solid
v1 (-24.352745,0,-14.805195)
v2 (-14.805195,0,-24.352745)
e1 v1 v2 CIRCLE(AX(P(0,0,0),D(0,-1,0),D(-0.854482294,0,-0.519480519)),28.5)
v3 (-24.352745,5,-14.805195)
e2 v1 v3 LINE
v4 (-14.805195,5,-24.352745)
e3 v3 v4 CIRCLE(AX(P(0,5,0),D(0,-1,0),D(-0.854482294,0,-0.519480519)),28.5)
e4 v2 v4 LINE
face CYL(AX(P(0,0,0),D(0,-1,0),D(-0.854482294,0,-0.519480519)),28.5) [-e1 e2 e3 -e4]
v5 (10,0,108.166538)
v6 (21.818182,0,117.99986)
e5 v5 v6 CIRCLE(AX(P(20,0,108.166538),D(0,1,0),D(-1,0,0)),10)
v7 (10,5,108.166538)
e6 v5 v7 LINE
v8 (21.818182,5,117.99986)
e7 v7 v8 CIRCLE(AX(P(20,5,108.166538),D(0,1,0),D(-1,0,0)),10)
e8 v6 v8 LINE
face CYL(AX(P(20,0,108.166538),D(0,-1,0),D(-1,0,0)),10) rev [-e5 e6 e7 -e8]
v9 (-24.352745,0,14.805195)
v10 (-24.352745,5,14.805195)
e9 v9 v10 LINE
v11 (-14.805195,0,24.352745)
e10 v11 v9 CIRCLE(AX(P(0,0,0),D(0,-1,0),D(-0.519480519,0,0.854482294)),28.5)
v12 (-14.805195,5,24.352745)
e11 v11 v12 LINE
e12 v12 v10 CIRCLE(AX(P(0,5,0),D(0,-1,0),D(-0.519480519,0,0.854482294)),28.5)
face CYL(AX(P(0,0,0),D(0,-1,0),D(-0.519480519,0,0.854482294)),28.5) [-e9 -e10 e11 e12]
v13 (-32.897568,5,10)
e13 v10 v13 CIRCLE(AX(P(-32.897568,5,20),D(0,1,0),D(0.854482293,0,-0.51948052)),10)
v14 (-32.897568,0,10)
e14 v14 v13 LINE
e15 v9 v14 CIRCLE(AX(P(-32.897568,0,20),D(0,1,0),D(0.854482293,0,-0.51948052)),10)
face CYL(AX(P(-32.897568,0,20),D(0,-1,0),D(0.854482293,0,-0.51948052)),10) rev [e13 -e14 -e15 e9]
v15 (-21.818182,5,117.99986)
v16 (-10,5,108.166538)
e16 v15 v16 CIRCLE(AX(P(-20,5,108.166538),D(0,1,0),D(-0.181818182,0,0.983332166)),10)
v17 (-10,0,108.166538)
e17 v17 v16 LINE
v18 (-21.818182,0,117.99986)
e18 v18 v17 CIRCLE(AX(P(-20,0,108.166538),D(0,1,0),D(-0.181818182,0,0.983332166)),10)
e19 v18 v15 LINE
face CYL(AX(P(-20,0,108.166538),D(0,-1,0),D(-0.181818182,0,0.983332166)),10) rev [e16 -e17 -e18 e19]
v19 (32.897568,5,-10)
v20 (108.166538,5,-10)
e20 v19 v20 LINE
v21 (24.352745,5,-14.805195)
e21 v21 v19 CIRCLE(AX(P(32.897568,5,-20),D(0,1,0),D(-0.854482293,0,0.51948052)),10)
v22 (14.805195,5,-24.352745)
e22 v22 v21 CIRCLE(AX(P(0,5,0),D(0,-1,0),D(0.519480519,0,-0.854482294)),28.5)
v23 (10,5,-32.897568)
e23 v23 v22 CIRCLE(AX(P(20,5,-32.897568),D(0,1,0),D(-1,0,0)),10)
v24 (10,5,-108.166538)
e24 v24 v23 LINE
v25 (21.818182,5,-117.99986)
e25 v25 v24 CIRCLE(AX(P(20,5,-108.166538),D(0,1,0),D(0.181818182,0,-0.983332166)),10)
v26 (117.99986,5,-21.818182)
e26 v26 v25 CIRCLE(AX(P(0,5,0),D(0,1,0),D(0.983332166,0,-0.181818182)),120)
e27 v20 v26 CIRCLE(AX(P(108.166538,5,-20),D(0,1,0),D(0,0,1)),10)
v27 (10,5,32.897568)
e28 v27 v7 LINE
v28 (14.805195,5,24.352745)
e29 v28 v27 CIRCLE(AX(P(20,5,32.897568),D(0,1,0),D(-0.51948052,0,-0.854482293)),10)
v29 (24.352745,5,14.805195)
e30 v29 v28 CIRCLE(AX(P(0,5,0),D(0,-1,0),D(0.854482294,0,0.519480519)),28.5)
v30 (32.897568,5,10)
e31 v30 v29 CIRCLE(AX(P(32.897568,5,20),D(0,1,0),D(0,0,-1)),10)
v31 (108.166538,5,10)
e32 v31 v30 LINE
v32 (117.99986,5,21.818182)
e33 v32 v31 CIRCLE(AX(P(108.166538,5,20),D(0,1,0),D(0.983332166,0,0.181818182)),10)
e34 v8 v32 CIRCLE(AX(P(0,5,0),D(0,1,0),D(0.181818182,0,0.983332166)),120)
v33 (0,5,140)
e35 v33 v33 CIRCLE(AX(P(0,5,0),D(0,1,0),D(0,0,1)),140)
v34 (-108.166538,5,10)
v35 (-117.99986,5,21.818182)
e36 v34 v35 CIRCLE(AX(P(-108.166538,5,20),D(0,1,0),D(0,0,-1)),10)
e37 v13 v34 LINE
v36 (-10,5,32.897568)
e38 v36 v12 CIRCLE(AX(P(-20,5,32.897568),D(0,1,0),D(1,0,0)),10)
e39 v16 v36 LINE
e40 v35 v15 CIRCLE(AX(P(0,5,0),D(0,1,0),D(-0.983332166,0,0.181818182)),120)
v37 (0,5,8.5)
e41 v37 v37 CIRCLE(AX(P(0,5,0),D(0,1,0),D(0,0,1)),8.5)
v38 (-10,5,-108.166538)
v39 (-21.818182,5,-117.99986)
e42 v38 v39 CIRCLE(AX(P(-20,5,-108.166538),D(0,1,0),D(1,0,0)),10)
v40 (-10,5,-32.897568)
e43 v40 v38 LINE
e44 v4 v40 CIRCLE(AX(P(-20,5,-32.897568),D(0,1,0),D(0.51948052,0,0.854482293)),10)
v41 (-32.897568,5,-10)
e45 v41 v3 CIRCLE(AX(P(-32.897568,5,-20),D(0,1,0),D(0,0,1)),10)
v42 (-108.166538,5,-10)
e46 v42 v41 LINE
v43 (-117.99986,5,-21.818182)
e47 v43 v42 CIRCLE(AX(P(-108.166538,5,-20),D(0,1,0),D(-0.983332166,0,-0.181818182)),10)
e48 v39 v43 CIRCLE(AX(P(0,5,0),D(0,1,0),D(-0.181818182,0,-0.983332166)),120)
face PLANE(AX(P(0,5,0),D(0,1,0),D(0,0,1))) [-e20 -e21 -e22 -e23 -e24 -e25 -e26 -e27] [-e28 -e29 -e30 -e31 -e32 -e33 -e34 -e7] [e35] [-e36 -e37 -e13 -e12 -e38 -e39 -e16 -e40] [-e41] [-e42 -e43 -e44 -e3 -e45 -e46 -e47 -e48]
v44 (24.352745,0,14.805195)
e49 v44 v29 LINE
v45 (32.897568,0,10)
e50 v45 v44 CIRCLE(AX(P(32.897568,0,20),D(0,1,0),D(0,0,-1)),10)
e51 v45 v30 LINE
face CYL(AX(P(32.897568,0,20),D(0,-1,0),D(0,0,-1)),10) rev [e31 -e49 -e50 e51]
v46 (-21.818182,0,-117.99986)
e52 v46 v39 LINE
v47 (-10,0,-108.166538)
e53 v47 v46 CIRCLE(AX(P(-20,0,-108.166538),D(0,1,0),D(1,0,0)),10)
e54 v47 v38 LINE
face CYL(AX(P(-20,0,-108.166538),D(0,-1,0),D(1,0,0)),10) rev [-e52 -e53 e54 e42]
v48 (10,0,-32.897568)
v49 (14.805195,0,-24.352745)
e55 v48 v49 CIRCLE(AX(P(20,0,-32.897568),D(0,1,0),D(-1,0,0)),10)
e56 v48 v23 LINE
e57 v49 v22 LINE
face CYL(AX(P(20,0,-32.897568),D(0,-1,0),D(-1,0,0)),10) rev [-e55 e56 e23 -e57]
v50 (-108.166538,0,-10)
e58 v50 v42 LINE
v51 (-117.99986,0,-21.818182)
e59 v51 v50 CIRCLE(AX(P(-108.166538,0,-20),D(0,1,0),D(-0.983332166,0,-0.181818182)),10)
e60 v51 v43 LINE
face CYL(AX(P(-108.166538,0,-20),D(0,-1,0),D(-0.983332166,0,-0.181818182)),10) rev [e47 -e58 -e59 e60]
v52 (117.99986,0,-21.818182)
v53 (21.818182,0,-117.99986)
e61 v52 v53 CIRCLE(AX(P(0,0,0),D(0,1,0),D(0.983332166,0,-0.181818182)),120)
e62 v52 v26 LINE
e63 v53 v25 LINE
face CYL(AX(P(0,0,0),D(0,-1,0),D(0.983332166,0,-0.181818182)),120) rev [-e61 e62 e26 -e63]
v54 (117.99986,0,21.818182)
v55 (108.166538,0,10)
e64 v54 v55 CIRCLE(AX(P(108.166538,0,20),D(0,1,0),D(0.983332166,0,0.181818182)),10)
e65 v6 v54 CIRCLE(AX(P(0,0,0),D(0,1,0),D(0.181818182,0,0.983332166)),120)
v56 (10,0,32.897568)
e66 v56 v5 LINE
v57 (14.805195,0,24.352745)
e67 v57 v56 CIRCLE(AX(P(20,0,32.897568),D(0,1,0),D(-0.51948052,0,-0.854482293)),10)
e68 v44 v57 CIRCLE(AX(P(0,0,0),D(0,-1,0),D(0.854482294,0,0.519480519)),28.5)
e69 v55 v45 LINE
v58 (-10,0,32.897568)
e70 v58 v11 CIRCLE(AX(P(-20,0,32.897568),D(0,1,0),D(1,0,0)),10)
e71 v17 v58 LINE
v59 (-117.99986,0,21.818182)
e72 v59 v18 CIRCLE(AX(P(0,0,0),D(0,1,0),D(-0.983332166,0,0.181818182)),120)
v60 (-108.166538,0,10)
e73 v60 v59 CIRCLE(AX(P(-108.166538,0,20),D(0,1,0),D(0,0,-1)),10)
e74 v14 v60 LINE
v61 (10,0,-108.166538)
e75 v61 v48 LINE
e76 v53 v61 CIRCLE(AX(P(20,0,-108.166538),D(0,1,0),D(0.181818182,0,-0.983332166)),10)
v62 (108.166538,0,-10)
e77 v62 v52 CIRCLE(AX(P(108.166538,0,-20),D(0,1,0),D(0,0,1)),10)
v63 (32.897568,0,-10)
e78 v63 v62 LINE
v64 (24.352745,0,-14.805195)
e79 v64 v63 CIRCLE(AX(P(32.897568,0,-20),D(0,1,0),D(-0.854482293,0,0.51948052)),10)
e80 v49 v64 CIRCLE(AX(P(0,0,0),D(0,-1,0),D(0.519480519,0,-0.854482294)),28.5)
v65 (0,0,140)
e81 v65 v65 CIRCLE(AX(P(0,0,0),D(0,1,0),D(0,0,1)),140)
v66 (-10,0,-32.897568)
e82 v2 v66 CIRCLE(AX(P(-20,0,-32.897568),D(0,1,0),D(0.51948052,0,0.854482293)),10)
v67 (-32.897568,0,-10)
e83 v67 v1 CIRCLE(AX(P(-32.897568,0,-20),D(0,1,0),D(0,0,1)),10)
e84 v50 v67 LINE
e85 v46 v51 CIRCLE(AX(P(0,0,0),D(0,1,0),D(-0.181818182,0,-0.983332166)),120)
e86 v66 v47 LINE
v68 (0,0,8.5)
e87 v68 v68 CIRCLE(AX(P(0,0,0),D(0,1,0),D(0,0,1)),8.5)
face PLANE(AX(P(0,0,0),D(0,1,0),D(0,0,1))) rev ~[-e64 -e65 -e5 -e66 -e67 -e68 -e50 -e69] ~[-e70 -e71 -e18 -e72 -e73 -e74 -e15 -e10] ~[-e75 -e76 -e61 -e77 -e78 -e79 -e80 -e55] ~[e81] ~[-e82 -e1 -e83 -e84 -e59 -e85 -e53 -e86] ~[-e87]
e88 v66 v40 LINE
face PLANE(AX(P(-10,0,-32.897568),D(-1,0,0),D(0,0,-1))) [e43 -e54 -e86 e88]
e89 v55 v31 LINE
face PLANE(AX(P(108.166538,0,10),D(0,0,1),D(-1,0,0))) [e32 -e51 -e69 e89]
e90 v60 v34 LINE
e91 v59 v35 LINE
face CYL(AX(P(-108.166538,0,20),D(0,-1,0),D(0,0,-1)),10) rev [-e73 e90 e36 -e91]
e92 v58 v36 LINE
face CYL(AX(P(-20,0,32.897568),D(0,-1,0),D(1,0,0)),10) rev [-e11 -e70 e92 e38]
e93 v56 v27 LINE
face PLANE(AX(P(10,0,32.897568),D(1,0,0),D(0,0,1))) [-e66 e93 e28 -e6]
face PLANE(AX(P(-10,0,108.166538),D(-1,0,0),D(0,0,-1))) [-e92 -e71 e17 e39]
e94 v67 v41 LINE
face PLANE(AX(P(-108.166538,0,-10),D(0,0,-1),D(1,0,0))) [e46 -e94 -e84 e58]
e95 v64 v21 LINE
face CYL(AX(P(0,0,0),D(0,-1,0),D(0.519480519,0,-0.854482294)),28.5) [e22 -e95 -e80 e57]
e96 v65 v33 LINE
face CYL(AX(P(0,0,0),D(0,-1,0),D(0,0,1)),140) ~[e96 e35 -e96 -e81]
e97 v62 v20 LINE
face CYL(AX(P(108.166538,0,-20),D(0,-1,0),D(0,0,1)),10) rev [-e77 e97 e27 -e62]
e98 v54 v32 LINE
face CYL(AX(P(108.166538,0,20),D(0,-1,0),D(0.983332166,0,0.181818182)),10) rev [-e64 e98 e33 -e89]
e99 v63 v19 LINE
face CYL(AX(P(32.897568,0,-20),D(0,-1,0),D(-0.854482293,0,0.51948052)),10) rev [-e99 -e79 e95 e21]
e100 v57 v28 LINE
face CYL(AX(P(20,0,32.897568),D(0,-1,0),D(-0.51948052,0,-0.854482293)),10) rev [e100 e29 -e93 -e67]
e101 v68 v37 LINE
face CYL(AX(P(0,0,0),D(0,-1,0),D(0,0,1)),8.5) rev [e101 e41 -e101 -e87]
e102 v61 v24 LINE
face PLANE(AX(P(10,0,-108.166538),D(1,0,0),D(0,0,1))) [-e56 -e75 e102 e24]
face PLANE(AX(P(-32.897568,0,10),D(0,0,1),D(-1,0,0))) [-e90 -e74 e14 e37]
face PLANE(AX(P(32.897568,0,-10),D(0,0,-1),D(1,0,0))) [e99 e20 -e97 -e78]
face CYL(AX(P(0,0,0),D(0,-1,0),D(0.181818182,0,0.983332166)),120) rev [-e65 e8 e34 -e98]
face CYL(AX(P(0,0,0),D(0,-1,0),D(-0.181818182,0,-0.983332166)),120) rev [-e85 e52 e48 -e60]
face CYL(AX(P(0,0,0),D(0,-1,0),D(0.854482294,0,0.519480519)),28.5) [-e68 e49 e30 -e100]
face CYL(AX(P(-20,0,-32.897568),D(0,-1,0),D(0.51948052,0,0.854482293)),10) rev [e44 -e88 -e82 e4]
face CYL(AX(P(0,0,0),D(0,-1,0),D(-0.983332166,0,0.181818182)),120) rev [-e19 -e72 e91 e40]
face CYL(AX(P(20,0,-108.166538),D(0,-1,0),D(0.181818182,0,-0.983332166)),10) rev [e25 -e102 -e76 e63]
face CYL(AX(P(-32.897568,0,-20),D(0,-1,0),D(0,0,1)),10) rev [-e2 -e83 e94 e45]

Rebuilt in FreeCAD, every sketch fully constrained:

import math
import FreeCAD as App
import Part
import Sketcher
Q = App.Units.Quantity

doc = App.newDocument("Part")
body = doc.addObject("PartDesign::Body", "Body")

# Sketch on XZ plane
sketch1 = doc.addObject("Sketcher::SketchObject", "Sketch")
body.addObject(sketch1)
sketch1.AttachmentSupport = (doc.XZ_Plane, [""])
sketch1.MapMode = "FlatFace"
sketch1.addGeometry(Part.Circle(App.Vector(0, 0, 0), App.Vector(0, 0, 1), 140), False)
sketch1.addGeometry(Part.LineSegment(App.Vector(-33, -10, 0), App.Vector(-108, -10, 0)), False)
sketch1.addGeometry(Part.ArcOfCircle(Part.Circle(App.Vector(-108, -20, 0), App.Vector(0, 0, 1), 10), math.radians(90), math.radians(190)), False)
sketch1.addGeometry(Part.ArcOfCircle(Part.Circle(App.Vector(0, 0, 0), App.Vector(0, 0, 1), 120), math.radians(-170), math.radians(-100)), False)
sketch1.addGeometry(Part.ArcOfCircle(Part.Circle(App.Vector(-20, -108, 0), App.Vector(0, 0, 1), 10), math.radians(-100), math.radians(0)), False)
sketch1.addGeometry(Part.LineSegment(App.Vector(-10, -108, 0), App.Vector(-10, -33, 0)), False)
sketch1.addGeometry(Part.ArcOfCircle(Part.Circle(App.Vector(-20, -33, 0), App.Vector(0, 0, 1), 10), math.radians(0), math.radians(59)), False)
sketch1.addGeometry(Part.ArcOfCircle(Part.Circle(App.Vector(0, 0, 0), App.Vector(0, 0, 1), 28), math.radians(-149), math.radians(-121)), False)
sketch1.addGeometry(Part.ArcOfCircle(Part.Circle(App.Vector(-33, -20, 0), App.Vector(0, 0, 1), 10), math.radians(31), math.radians(90)), False)
sketch1.addGeometry(Part.LineSegment(App.Vector(-10, 33, 0), App.Vector(-10, 108, 0)), False)
sketch1.addGeometry(Part.ArcOfCircle(Part.Circle(App.Vector(-20, 108, 0), App.Vector(0, 0, 1), 10), math.radians(0), math.radians(100)), False)
sketch1.addGeometry(Part.ArcOfCircle(Part.Circle(App.Vector(0, 0, 0), App.Vector(0, 0, 1), 120), math.radians(100), math.radians(170)), False)
sketch1.addGeometry(Part.ArcOfCircle(Part.Circle(App.Vector(-108, 20, 0), App.Vector(0, 0, 1), 10), math.radians(170), math.radians(270)), False)
sketch1.addGeometry(Part.LineSegment(App.Vector(-108, 10, 0), App.Vector(-33, 10, 0)), False)
sketch1.addGeometry(Part.ArcOfCircle(Part.Circle(App.Vector(-33, 20, 0), App.Vector(0, 0, 1), 10), math.radians(-90), math.radians(-31)), False)
sketch1.addGeometry(Part.ArcOfCircle(Part.Circle(App.Vector(0, 0, 0), App.Vector(0, 0, 1), 28), math.radians(121), math.radians(149)), False)
sketch1.addGeometry(Part.ArcOfCircle(Part.Circle(App.Vector(-20, 33, 0), App.Vector(0, 0, 1), 10), math.radians(-59), math.radians(0)), False)
sketch1.addGeometry(Part.LineSegment(App.Vector(10, -33, 0), App.Vector(10, -108, 0)), False)
sketch1.addGeometry(Part.ArcOfCircle(Part.Circle(App.Vector(20, -108, 0), App.Vector(0, 0, 1), 10), math.radians(180), math.radians(280)), False)
sketch1.addGeometry(Part.ArcOfCircle(Part.Circle(App.Vector(0, 0, 0), App.Vector(0, 0, 1), 120), math.radians(-80), math.radians(-10)), False)
sketch1.addGeometry(Part.ArcOfCircle(Part.Circle(App.Vector(108, -20, 0), App.Vector(0, 0, 1), 10), math.radians(-10), math.radians(90)), False)
sketch1.addGeometry(Part.LineSegment(App.Vector(108, -10, 0), App.Vector(33, -10, 0)), False)
sketch1.addGeometry(Part.ArcOfCircle(Part.Circle(App.Vector(33, -20, 0), App.Vector(0, 0, 1), 10), math.radians(90), math.radians(149)), False)
sketch1.addGeometry(Part.ArcOfCircle(Part.Circle(App.Vector(0, 0, 0), App.Vector(0, 0, 1), 28), math.radians(-59), math.radians(-31)), False)
sketch1.addGeometry(Part.ArcOfCircle(Part.Circle(App.Vector(20, -33, 0), App.Vector(0, 0, 1), 10), math.radians(121), math.radians(180)), False)
sketch1.addGeometry(Part.Circle(App.Vector(0, 0, 0), App.Vector(0, 0, 1), 8), False)
sketch1.addGeometry(Part.LineSegment(App.Vector(33, 10, 0), App.Vector(108, 10, 0)), False)
sketch1.addGeometry(Part.ArcOfCircle(Part.Circle(App.Vector(108, 20, 0), App.Vector(0, 0, 1), 10), math.radians(-90), math.radians(10)), False)
sketch1.addGeometry(Part.ArcOfCircle(Part.Circle(App.Vector(0, 0, 0), App.Vector(0, 0, 1), 120), math.radians(10), math.radians(80)), False)
sketch1.addGeometry(Part.ArcOfCircle(Part.Circle(App.Vector(20, 108, 0), App.Vector(0, 0, 1), 10), math.radians(80), math.radians(180)), False)
sketch1.addGeometry(Part.LineSegment(App.Vector(10, 108, 0), App.Vector(10, 33, 0)), False)
sketch1.addGeometry(Part.ArcOfCircle(Part.Circle(App.Vector(20, 33, 0), App.Vector(0, 0, 1), 10), math.radians(-180), math.radians(-121)), False)
sketch1.addGeometry(Part.ArcOfCircle(Part.Circle(App.Vector(0, 0, 0), App.Vector(0, 0, 1), 28), math.radians(31), math.radians(59)), False)
sketch1.addGeometry(Part.ArcOfCircle(Part.Circle(App.Vector(33, 20, 0), App.Vector(0, 0, 1), 10), math.radians(-149), math.radians(-90)), False)
sketch1.addConstraint(Sketcher.Constraint("Tangent", 1, 2, 2, 1))
sketch1.addConstraint(Sketcher.Constraint("Tangent", 2, 2, 3, 1))
sketch1.addConstraint(Sketcher.Constraint("Tangent", 3, 2, 4, 1))
sketch1.addConstraint(Sketcher.Constraint("Tangent", 4, 2, 5, 1))
sketch1.addConstraint(Sketcher.Constraint("Tangent", 5, 2, 6, 1))
sketch1.addConstraint(Sketcher.Constraint("Tangent", 6, 2, 7, 2))
sketch1.addConstraint(Sketcher.Constraint("Tangent", 7, 1, 8, 1))
sketch1.addConstraint(Sketcher.Constraint("Tangent", 8, 2, 1, 1))
sketch1.addConstraint(Sketcher.Constraint("Tangent", 9, 2, 10, 1))
sketch1.addConstraint(Sketcher.Constraint("Tangent", 10, 2, 11, 1))
sketch1.addConstraint(Sketcher.Constraint("Tangent", 11, 2, 12, 1))
sketch1.addConstraint(Sketcher.Constraint("Tangent", 12, 2, 13, 1))
sketch1.addConstraint(Sketcher.Constraint("Tangent", 13, 2, 14, 1))
sketch1.addConstraint(Sketcher.Constraint("Tangent", 14, 2, 15, 2))
sketch1.addConstraint(Sketcher.Constraint("Tangent", 15, 1, 16, 1))
sketch1.addConstraint(Sketcher.Constraint("Tangent", 16, 2, 9, 1))
sketch1.addConstraint(Sketcher.Constraint("Tangent", 17, 2, 18, 1))
sketch1.addConstraint(Sketcher.Constraint("Tangent", 18, 2, 19, 1))
sketch1.addConstraint(Sketcher.Constraint("Tangent", 19, 2, 20, 1))
sketch1.addConstraint(Sketcher.Constraint("Tangent", 20, 2, 21, 1))
sketch1.addConstraint(Sketcher.Constraint("Tangent", 21, 2, 22, 1))
sketch1.addConstraint(Sketcher.Constraint("Tangent", 22, 2, 23, 2))
sketch1.addConstraint(Sketcher.Constraint("Tangent", 23, 1, 24, 1))
sketch1.addConstraint(Sketcher.Constraint("Tangent", 24, 2, 17, 1))
sketch1.addConstraint(Sketcher.Constraint("Tangent", 26, 2, 27, 1))
sketch1.addConstraint(Sketcher.Constraint("Tangent", 27, 2, 28, 1))
sketch1.addConstraint(Sketcher.Constraint("Tangent", 28, 2, 29, 1))
sketch1.addConstraint(Sketcher.Constraint("Tangent", 29, 2, 30, 1))
sketch1.addConstraint(Sketcher.Constraint("Tangent", 30, 2, 31, 1))
sketch1.addConstraint(Sketcher.Constraint("Tangent", 31, 2, 32, 2))
sketch1.addConstraint(Sketcher.Constraint("Tangent", 32, 1, 33, 1))
sketch1.addConstraint(Sketcher.Constraint("Tangent", 33, 2, 26, 1))
sketch1.addConstraint(Sketcher.Constraint("Horizontal", 1))
sketch1.addConstraint(Sketcher.Constraint("Vertical", 5))
sketch1.addConstraint(Sketcher.Constraint("Vertical", 9))
sketch1.addConstraint(Sketcher.Constraint("Horizontal", 13))
sketch1.addConstraint(Sketcher.Constraint("Vertical", 17))
sketch1.addConstraint(Sketcher.Constraint("Horizontal", 21))
sketch1.addConstraint(Sketcher.Constraint("Horizontal", 26))
sketch1.addConstraint(Sketcher.Constraint("Vertical", 30))
sketch1.addConstraint(Sketcher.Constraint("Coincident", 0, 3, -1, 1))
sketch1.addConstraint(Sketcher.Constraint("Coincident", 3, 3, -1, 1))
sketch1.addConstraint(Sketcher.Constraint("Coincident", 7, 3, -1, 1))
sketch1.addConstraint(Sketcher.Constraint("Coincident", 11, 3, -1, 1))
sketch1.addConstraint(Sketcher.Constraint("Coincident", 15, 3, -1, 1))
sketch1.addConstraint(Sketcher.Constraint("Coincident", 19, 3, -1, 1))
sketch1.addConstraint(Sketcher.Constraint("Coincident", 23, 3, -1, 1))
sketch1.addConstraint(Sketcher.Constraint("Coincident", 25, 3, -1, 1))
sketch1.addConstraint(Sketcher.Constraint("Coincident", 28, 3, -1, 1))
sketch1.addConstraint(Sketcher.Constraint("Coincident", 32, 3, -1, 1))
sketch1.addConstraint(Sketcher.Constraint("Equal", 2, 4))
sketch1.addConstraint(Sketcher.Constraint("Equal", 4, 6))
sketch1.addConstraint(Sketcher.Constraint("Equal", 6, 8))
sketch1.addConstraint(Sketcher.Constraint("Equal", 8, 10))
sketch1.addConstraint(Sketcher.Constraint("Equal", 3, 11))
sketch1.addConstraint(Sketcher.Constraint("Equal", 10, 12))
sketch1.addConstraint(Sketcher.Constraint("Equal", 12, 14))
sketch1.addConstraint(Sketcher.Constraint("Equal", 7, 15))
sketch1.addConstraint(Sketcher.Constraint("Equal", 14, 16))
sketch1.addConstraint(Sketcher.Constraint("Equal", 16, 18))
sketch1.addConstraint(Sketcher.Constraint("Equal", 11, 19))
sketch1.addConstraint(Sketcher.Constraint("Equal", 18, 20))
sketch1.addConstraint(Sketcher.Constraint("Equal", 20, 22))
sketch1.addConstraint(Sketcher.Constraint("Equal", 15, 23))
sketch1.addConstraint(Sketcher.Constraint("Equal", 22, 24))
sketch1.addConstraint(Sketcher.Constraint("Equal", 24, 27))
sketch1.addConstraint(Sketcher.Constraint("Equal", 19, 28))
sketch1.addConstraint(Sketcher.Constraint("Equal", 27, 29))
sketch1.addConstraint(Sketcher.Constraint("Equal", 29, 31))
sketch1.addConstraint(Sketcher.Constraint("Equal", 23, 32))
sketch1.addConstraint(Sketcher.Constraint("Equal", 31, 33))
sketch1.addConstraint(Sketcher.Constraint("Horizontal", 4, 3, 18, 3))
sketch1.addConstraint(Sketcher.Constraint("Horizontal", 8, 3, 20, 3))
sketch1.addConstraint(Sketcher.Constraint("Horizontal", 14, 3, 27, 3))
sketch1.addConstraint(Sketcher.Constraint("Horizontal", 10, 3, 29, 3))
sketch1.addConstraint(Sketcher.Constraint("Vertical", 6, 3, 10, 3))
sketch1.addConstraint(Sketcher.Constraint("Vertical", 2, 3, 12, 3))
sketch1.addConstraint(Sketcher.Constraint("Equal", 26, 5))
sketch1.addConstraint(Sketcher.Constraint("Diameter", 0, Q("280 mm")))
sketch1.addConstraint(Sketcher.Constraint("Diameter", 25, Q("17 mm")))
sketch1.addConstraint(Sketcher.Constraint("Radius", 2, Q("10 mm")))
sketch1.addConstraint(Sketcher.Constraint("Radius", 3, Q("120 mm")))
sketch1.addConstraint(Sketcher.Constraint("Radius", 7, Q("28.5 mm")))
sketch1.addConstraint(Sketcher.Constraint("DistanceY", 2, 3, -1, 1, Q("20 mm")))
pad1 = doc.addObject("PartDesign::Pad", "Pad")
body.addObject(pad1)
pad1.Profile = sketch1
pad1.Length = 5
pad1.Reversed = True

doc.recompute()
